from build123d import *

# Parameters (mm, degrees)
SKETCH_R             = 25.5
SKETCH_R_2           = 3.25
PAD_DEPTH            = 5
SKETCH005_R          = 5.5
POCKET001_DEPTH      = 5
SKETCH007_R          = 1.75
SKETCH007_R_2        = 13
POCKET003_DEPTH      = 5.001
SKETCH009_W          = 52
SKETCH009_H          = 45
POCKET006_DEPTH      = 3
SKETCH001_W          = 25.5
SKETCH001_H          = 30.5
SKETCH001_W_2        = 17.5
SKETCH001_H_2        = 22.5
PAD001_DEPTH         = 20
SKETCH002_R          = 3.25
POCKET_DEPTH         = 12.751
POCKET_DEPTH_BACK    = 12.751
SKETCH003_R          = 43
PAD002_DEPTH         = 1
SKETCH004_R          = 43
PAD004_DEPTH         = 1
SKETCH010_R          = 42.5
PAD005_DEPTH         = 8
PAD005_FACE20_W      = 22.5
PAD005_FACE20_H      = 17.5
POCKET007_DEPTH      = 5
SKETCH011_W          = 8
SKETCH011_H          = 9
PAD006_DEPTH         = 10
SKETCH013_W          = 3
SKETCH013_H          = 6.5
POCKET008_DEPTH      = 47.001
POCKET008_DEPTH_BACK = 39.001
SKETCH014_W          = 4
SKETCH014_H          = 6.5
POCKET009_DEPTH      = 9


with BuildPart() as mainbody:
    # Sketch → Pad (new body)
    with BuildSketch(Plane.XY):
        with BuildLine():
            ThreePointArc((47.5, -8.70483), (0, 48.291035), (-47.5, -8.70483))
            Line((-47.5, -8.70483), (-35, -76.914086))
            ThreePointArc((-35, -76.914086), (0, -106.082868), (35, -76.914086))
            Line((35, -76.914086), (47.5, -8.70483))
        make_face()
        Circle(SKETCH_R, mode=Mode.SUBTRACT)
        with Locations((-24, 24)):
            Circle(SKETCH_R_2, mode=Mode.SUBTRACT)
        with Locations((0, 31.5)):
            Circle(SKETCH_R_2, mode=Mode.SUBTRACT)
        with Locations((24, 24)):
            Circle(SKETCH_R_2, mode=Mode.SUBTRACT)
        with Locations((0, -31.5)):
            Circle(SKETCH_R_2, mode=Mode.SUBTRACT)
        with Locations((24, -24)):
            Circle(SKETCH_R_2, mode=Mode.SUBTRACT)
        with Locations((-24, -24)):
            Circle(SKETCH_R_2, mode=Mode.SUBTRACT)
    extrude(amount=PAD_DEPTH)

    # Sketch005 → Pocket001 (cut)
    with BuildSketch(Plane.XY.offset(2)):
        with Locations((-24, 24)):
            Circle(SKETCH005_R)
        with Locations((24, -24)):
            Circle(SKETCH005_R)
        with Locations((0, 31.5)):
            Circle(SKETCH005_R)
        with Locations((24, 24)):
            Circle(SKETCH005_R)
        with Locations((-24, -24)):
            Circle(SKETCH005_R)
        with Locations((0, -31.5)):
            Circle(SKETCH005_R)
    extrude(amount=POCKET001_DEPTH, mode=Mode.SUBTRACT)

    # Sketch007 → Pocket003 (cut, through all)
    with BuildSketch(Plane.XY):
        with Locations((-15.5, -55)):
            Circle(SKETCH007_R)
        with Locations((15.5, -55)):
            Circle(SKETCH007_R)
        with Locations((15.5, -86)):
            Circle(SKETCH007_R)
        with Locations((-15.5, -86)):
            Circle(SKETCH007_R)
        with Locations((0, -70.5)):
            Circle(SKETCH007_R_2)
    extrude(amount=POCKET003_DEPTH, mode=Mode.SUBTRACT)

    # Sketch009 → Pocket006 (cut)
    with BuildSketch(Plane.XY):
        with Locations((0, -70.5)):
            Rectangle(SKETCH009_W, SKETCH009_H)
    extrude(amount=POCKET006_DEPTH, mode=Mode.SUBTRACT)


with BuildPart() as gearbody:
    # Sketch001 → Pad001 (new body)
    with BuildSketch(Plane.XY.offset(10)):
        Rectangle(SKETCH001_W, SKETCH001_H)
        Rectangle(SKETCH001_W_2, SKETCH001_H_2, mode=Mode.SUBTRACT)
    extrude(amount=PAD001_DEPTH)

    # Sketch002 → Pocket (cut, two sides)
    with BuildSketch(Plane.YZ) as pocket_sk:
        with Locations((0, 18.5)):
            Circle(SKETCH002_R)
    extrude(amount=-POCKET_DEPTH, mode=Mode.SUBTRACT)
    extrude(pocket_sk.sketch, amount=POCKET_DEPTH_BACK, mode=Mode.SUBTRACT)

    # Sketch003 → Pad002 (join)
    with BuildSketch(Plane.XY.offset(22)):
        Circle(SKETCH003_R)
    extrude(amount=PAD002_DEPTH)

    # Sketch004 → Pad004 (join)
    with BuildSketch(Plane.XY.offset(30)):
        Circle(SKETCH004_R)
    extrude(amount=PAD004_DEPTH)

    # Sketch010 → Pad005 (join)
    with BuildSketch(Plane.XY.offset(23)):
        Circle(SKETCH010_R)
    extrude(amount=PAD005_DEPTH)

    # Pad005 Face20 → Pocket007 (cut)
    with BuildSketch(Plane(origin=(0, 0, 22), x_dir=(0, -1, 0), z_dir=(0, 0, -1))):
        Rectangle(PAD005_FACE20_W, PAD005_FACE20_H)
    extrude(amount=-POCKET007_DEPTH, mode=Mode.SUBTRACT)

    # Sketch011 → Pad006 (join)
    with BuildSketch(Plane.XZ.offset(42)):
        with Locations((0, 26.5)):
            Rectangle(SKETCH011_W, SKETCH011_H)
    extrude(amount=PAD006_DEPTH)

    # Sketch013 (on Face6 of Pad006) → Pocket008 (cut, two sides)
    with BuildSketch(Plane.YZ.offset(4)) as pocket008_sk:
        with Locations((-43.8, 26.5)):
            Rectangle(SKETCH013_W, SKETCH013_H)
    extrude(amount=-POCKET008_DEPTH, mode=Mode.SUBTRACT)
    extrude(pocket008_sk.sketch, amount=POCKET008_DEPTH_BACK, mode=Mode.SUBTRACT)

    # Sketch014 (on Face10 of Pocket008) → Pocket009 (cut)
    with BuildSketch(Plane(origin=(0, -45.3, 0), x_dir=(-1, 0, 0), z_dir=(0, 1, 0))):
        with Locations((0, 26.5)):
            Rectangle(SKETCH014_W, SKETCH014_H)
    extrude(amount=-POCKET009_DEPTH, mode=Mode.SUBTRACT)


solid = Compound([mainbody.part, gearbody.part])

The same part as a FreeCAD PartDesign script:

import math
import FreeCAD as App
import Part
import Sketcher

V = App.Vector


def add_polygon(sketch, points):
    """Adds a closed chain of lines whose ends are joined by coincident constraints."""
    first, n = sketch.GeometryCount, len(points)
    for a, b in zip(points, points[1:] + points[:1]):
        sketch.addGeometry(Part.LineSegment(App.Vector(*a, 0), App.Vector(*b, 0)), False)
    for i in range(n):
        sketch.addConstraint(Sketcher.Constraint("Coincident", first + i, 2, first + (i + 1) % n, 1))

doc = App.newDocument("Part")
params = doc.addObject("Spreadsheet::Sheet", "Params")
for row, (alias, value) in enumerate([
    ("sketch1_diameter", "51 mm"),
    ("sketch1_diameter2", "6.5 mm"),
    ("pad1_length", "5 mm"),
    ("sketch2_diameter", "11 mm"),
    ("pocket1_length", "5 mm"),
    ("sketch3_diameter", "26 mm"),
    ("sketch3_diameter2", "3.5 mm"),
    ("sketch4_width", "52 mm"),
    ("sketch4_height", "45 mm"),
    ("pocket3_length", "3 mm"),
    ("sketch5_width", "25.5 mm"),
    ("sketch5_width2", "17.5 mm"),
    ("sketch5_height", "30.5 mm"),
    ("sketch5_height2", "22.5 mm"),
    ("pad2_length", "20 mm"),
    ("sketch6_diameter", "6.5 mm"),
    ("sketch7_diameter", "86 mm"),
    ("pad3_length", "1 mm"),
    ("sketch8_diameter", "86 mm"),
    ("pad4_length", "1 mm"),
    ("sketch9_diameter", "85 mm"),
    ("pad5_length", "8 mm"),
    ("sketch10_width", "17.5 mm"),
    ("sketch10_height", "22.5 mm"),
    ("pocket5_length", "5 mm"),
    ("sketch11_width", "8 mm"),
    ("sketch11_height", "9 mm"),
    ("pad6_length", "10 mm"),
    ("sketch12_width", "3 mm"),
    ("sketch12_height", "6.5 mm"),
    ("sketch13_width", "4 mm"),
    ("sketch13_height", "6.5 mm"),
    ("pocket7_length", "9 mm"),
], start=1):
    params.set(f"A{row}", alias)
    params.set(f"B{row}", "=" + value)
    params.setAlias(f"B{row}", alias)

body = doc.addObject("PartDesign::Body", "Body")

sketch1 = body.newObject("Sketcher::SketchObject", "Sketch")
sketch1.AttachmentSupport = (doc.getObject("XY_Plane"), [""])
sketch1.MapMode = "FlatFace"
sketch1.addGeometry([
    Part.ArcOfCircle(Part.Circle(V(0, 0, 0), V(0, 0, 1), 48.3), math.radians(-10), math.radians(190)),
    Part.LineSegment(V(-47.5, -8.7, 0), V(-35, -76.9, 0)),
    Part.ArcOfCircle(Part.Circle(V(0, -70.5, 0), V(0, 0, 1), 35.6), math.radians(-170), math.radians(-10)),
    Part.LineSegment(V(35, -76.9, 0), V(47.5, -8.7, 0)),
    Part.Circle(V(-24, -24, 0), V(0, 0, 1), 3.2),
    Part.Circle(V(0, -31.5, 0), V(0, 0, 1), 3.2),
    Part.Circle(V(24, -24, 0), V(0, 0, 1), 3.2),
    Part.Circle(V(-24, 24, 0), V(0, 0, 1), 3.2),
    Part.Circle(V(0, 0, 0), V(0, 0, 1), 25.5),
    Part.Circle(V(0, 31.5, 0), V(0, 0, 1), 3.2),
    Part.Circle(V(24, 24, 0), V(0, 0, 1), 3.2),
], False)
sketch1.addConstraint([
    Sketcher.Constraint("Tangent", 0, 2, 1, 1),
    Sketcher.Constraint("Tangent", 1, 2, 2, 1),
    Sketcher.Constraint("Tangent", 2, 2, 3, 1),
    Sketcher.Constraint("Tangent", 3, 2, 0, 1),
    Sketcher.Constraint("Coincident", 0, 3, -1, 1),
    Sketcher.Constraint("Coincident", 8, 3, -1, 1),
    Sketcher.Constraint("Equal", 4, 5),
    Sketcher.Constraint("Equal", 5, 6),
    Sketcher.Constraint("Equal", 6, 7),
    Sketcher.Constraint("Equal", 7, 9),
    Sketcher.Constraint("Equal", 9, 10),
    Sketcher.Constraint("Symmetric", 6, 3, 7, 3, -1, 1),
    Sketcher.Constraint("Symmetric", 5, 3, 9, 3, -1, 1),
    Sketcher.Constraint("Symmetric", 4, 3, 10, 3, -1, 1),
    Sketcher.Constraint("Symmetric", 4, 3, 6, 3, -2),
    Sketcher.Constraint("PointOnObject", 2, 3, -2),
    Sketcher.Constraint("PointOnObject", 5, 3, -2),
    Sketcher.Constraint("Diameter", 8, 51.0),
    Sketcher.Constraint("Diameter", 4, 6.5),
    Sketcher.Constraint("DistanceX", 4, 3, -1, 1, 24.0),
    Sketcher.Constraint("DistanceY", 4, 3, -1, 1, 24.0),
    Sketcher.Constraint("DistanceX", 1, 2, -1, 1, 35.0),
    Sketcher.Constraint("DistanceY", 2, 3, 5, 3, 39.0),
    Sketcher.Constraint("DistanceY", 2, 3, -1, 1, 70.5),
    Sketcher.Constraint("DistanceX", 0, 2, -1, 1, 47.5),
])
sketch1.setExpression("Constraints[17]", "Params.sketch1_diameter")
sketch1.setExpression("Constraints[18]", "Params.sketch1_diameter2")
pad1 = body.newObject("PartDesign::Pad", "Pad")
pad1.Profile = sketch1
pad1.setExpression("Length", "Params.pad1_length")

sketch2 = body.newObject("Sketcher::SketchObject", "Sketch001")
sketch2.AttachmentSupport = (doc.getObject("XY_Plane"), [""])
sketch2.MapMode = "FlatFace"
sketch2.AttachmentOffset = App.Placement(V(0, 0, 2), App.Rotation())
sketch2.addGeometry([
    Part.Circle(V(-24, 24, 0), V(0, 0, 1), 6),
    Part.Circle(V(24, -24, 0), V(0, 0, 1), 6),
    Part.Circle(V(0, 32, 0), V(0, 0, 1), 6),
    Part.Circle(V(24, 24, 0), V(0, 0, 1), 6),
    Part.Circle(V(-24, -24, 0), V(0, 0, 1), 6),
    Part.Circle(V(0, -32, 0), V(0, 0, 1), 6),
], False)
sketch2.addConstraint([
    Sketcher.Constraint("Equal", 0, 1),
    Sketcher.Constraint("Equal", 1, 2),
    Sketcher.Constraint("Equal", 2, 3),
    Sketcher.Constraint("Equal", 3, 4),
    Sketcher.Constraint("Equal", 4, 5),
    Sketcher.Constraint("Symmetric", 0, 3, 1, 3, -1, 1),
    Sketcher.Constraint("Symmetric", 3, 3, 4, 3, -1, 1),
    Sketcher.Constraint("Symmetric", 2, 3, 5, 3, -1, 1),
    Sketcher.Constraint("Symmetric", 0, 3, 3, 3, -2),
    Sketcher.Constraint("PointOnObject", 2, 3, -2),
    Sketcher.Constraint("Diameter", 0, 11.0),
    Sketcher.Constraint("DistanceX", 0, 3, -1, 1, 24.0),
    Sketcher.Constraint("DistanceY", -1, 1, 0, 3, 24.0),
    Sketcher.Constraint("DistanceY", 5, 3, 2, 3, 63.0),
])
sketch2.setExpression("Constraints[10]", "Params.sketch2_diameter")
pocket1 = body.newObject("PartDesign::Pocket", "Pocket")
pocket1.Profile = sketch2
pocket1.setExpression("Length", "Params.pocket1_length")
pocket1.Reversed = True

sketch3 = body.newObject("Sketcher::SketchObject", "Sketch002")
sketch3.AttachmentSupport = (doc.getObject("XY_Plane"), [""])
sketch3.MapMode = "FlatFace"
sketch3.addGeometry([
    Part.Circle(V(-15.5, -55, 0), V(0, 0, 1), 1.8),
    Part.Circle(V(15.5, -55, 0), V(0, 0, 1), 1.8),
    Part.Circle(V(15.5, -86, 0), V(0, 0, 1), 1.8),
    Part.Circle(V(-15.5, -86, 0), V(0, 0, 1), 1.8),
    Part.Circle(V(0, -70.5, 0), V(0, 0, 1), 13),
], False)
sketch3.addConstraint([
    Sketcher.Constraint("Equal", 0, 1),
    Sketcher.Constraint("Equal", 1, 2),
    Sketcher.Constraint("Equal", 2, 3),
    Sketcher.Constraint("Symmetric", 0, 3, 1, 3, -2),
    Sketcher.Constraint("Symmetric", 2, 3, 3, 3, -2),
    Sketcher.Constraint("PointOnObject", 4, 3, -2),
    Sketcher.Constraint("Vertical", 1, 3, 2, 3),
    Sketcher.Constraint("Diameter", 4, 26.0),
    Sketcher.Constraint("Diameter", 0, 3.5),
    Sketcher.Constraint("DistanceY", 0, 3, -1, 1, 55.0),
    Sketcher.Constraint("DistanceY", 2, 3, -1, 1, 86.0),
    Sketcher.Constraint("DistanceX", 0, 3, 1, 3, 31.0),
    Sketcher.Constraint("DistanceY", 4, 3, -1, 1, 70.5),
])
sketch3.setExpression("Constraints[7]", "Params.sketch3_diameter")
sketch3.setExpression("Constraints[8]", "Params.sketch3_diameter2")
pocket2 = body.newObject("PartDesign::Pocket", "Pocket001")
pocket2.Profile = sketch3
pocket2.Type = "ThroughAll"
pocket2.Reversed = True

sketch4 = body.newObject("Sketcher::SketchObject", "Sketch003")
sketch4.AttachmentSupport = (doc.getObject("XY_Plane"), [""])
sketch4.MapMode = "FlatFace"
add_polygon(sketch4, [(-26, -48), (-26, -93), (26, -93), (26, -48)])
sketch4.addConstraint([
    Sketcher.Constraint("Vertical", 0),
    Sketcher.Constraint("Horizontal", 1),
    Sketcher.Constraint("Vertical", 2),
    Sketcher.Constraint("Horizontal", 3),
    Sketcher.Constraint("DistanceX", 1, 1, 1, 2, 52.0),
    Sketcher.Constraint("DistanceY", 0, 2, 0, 1, 45.0),
    Sketcher.Constraint("DistanceX", 0, 2, -1, 1, 26.0),
    Sketcher.Constraint("DistanceY", 0, 2, -1, 1, 93.0),
])
sketch4.setExpression("Constraints[8]", "Params.sketch4_width")
sketch4.setExpression("Constraints[9]", "Params.sketch4_height")
pocket3 = body.newObject("PartDesign::Pocket", "Pocket002")
pocket3.Profile = sketch4
pocket3.setExpression("Length", "Params.pocket3_length")
pocket3.Reversed = True
body2 = doc.addObject("PartDesign::Body", "Body001")

sketch5 = body2.newObject("Sketcher::SketchObject", "Sketch004")
sketch5.AttachmentSupport = (doc.getObject("XY_Plane001"), [""])
sketch5.MapMode = "FlatFace"
sketch5.AttachmentOffset = App.Placement(V(0, 0, 10), App.Rotation())
add_polygon(sketch5, [(-13, 15), (-13, -15), (13, -15), (13, 15)])
add_polygon(sketch5, [(9, -11), (-9, -11), (-9, 11), (9, 11)])
sketch5.addConstraint([
    Sketcher.Constraint("Vertical", 0),
    Sketcher.Constraint("Horizontal", 1),
    Sketcher.Constraint("Vertical", 2),
    Sketcher.Constraint("Horizontal", 3),
    Sketcher.Constraint("Horizontal", 4),
    Sketcher.Constraint("Vertical", 5),
    Sketcher.Constraint("Horizontal", 6),
    Sketcher.Constraint("Vertical", 7),
    Sketcher.Constraint("Symmetric", 0, 2, 2, 2, -1, 1),
    Sketcher.Constraint("Symmetric", 4, 2, 6, 2, -1, 1),
    Sketcher.Constraint("DistanceX", 1, 1, 1, 2, 25.5),
    Sketcher.Constraint("DistanceX", 4, 2, 4, 1, 17.5),
    Sketcher.Constraint("DistanceY", 0, 2, 0, 1, 30.5),
    Sketcher.Constraint("DistanceY", 5, 1, 5, 2, 22.5),
])
sketch5.setExpression("Constraints[18]", "Params.sketch5_width")
sketch5.setExpression("Constraints[19]", "Params.sketch5_width2")
sketch5.setExpression("Constraints[20]", "Params.sketch5_height")
sketch5.setExpression("Constraints[21]", "Params.sketch5_height2")
pad2 = body2.newObject("PartDesign::Pad", "Pad001")
pad2.Profile = sketch5
pad2.setExpression("Length", "Params.pad2_length")

sketch6 = body2.newObject("Sketcher::SketchObject", "Sketch005")
sketch6.AttachmentSupport = (doc.getObject("YZ_Plane001"), [""])
sketch6.MapMode = "FlatFace"
sketch6.addGeometry(Part.Circle(V(0, 18.5, 0), V(0, 0, 1), 3.2), False)
sketch6.addConstraint([
    Sketcher.Constraint("PointOnObject", 0, 3, -2),
    Sketcher.Constraint("Diameter", 0, 6.5),
    Sketcher.Constraint("DistanceY", -1, 1, 0, 3, 18.5),
])
sketch6.setExpression("Constraints[1]", "Params.sketch6_diameter")
pocket4 = body2.newObject("PartDesign::Pocket", "Pocket003")
pocket4.Profile = sketch6
pocket4.Type = "ThroughAll"
pocket4.Midplane = True

sketch7 = body2.newObject("Sketcher::SketchObject", "Sketch006")
sketch7.AttachmentSupport = (doc.getObject("XY_Plane001"), [""])
sketch7.MapMode = "FlatFace"
sketch7.AttachmentOffset = App.Placement(V(0, 0, 22), App.Rotation())
sketch7.addGeometry(Part.Circle(V(0, 0, 0), V(0, 0, 1), 43), False)
sketch7.addConstraint([
    Sketcher.Constraint("Coincident", 0, 3, -1, 1),
    Sketcher.Constraint("Diameter", 0, 86.0),
])
sketch7.setExpression("Constraints[1]", "Params.sketch7_diameter")
pad3 = body2.newObject("PartDesign::Pad", "Pad002")
pad3.Profile = sketch7
pad3.setExpression("Length", "Params.pad3_length")

sketch8 = body2.newObject("Sketcher::SketchObject", "Sketch007")
sketch8.AttachmentSupport = (doc.getObject("XY_Plane001"), [""])
sketch8.MapMode = "FlatFace"
sketch8.AttachmentOffset = App.Placement(V(0, 0, 30), App.Rotation())
sketch8.addGeometry(Part.Circle(V(0, 0, 0), V(0, 0, 1), 43), False)
sketch8.addConstraint([
    Sketcher.Constraint("Coincident", 0, 3, -1, 1),
    Sketcher.Constraint("Diameter", 0, 86.0),
])
sketch8.setExpression("Constraints[1]", "Params.sketch8_diameter")
pad4 = body2.newObject("PartDesign::Pad", "Pad003")
pad4.Profile = sketch8
pad4.setExpression("Length", "Params.pad4_length")

sketch9 = body2.newObject("Sketcher::SketchObject", "Sketch008")
sketch9.AttachmentSupport = (doc.getObject("XY_Plane001"), [""])
sketch9.MapMode = "FlatFace"
sketch9.AttachmentOffset = App.Placement(V(0, 0, 23), App.Rotation())
sketch9.addGeometry(Part.Circle(V(0, 0, 0), V(0, 0, 1), 42), False)
sketch9.addConstraint([
    Sketcher.Constraint("Coincident", 0, 3, -1, 1),
    Sketcher.Constraint("Diameter", 0, 85.0),
])
sketch9.setExpression("Constraints[1]", "Params.sketch9_diameter")
pad5 = body2.newObject("PartDesign::Pad", "Pad004")
pad5.Profile = sketch9
pad5.setExpression("Length", "Params.pad5_length")

sketch10 = body2.newObject("Sketcher::SketchObject", "Sketch009")
sketch10.AttachmentSupport = (doc.getObject("XY_Plane001"), [""])
sketch10.MapMode = "FlatFace"
sketch10.AttachmentOffset = App.Placement(V(0, 0, 22), App.Rotation())
add_polygon(sketch10, [(-9, 11), (9, 11), (9, -11), (-9, -11)])
sketch10.addConstraint([
    Sketcher.Constraint("Horizontal", 0),
    Sketcher.Constraint("Vertical", 1),
    Sketcher.Constraint("Horizontal", 2),
    Sketcher.Constraint("Vertical", 3),
    Sketcher.Constraint("Symmetric", 0, 2, 2, 2, -1, 1),
    Sketcher.Constraint("DistanceX", 0, 1, 0, 2, 17.5),
    Sketcher.Constraint("DistanceY", 1, 2, 1, 1, 22.5),
])
sketch10.setExpression("Constraints[9]", "Params.sketch10_width")
sketch10.setExpression("Constraints[10]", "Params.sketch10_height")
pocket5 = body2.newObject("PartDesign::Pocket", "Pocket004")
pocket5.Profile = sketch10
pocket5.setExpression("Length", "Params.pocket5_length")
pocket5.Reversed = True

sketch11 = body2.newObject("Sketcher::SketchObject", "Sketch010")
sketch11.AttachmentSupport = (doc.getObject("XZ_Plane001"), [""])
sketch11.MapMode = "FlatFace"
sketch11.AttachmentOffset = App.Placement(V(0, 0, 42), App.Rotation())
add_polygon(sketch11, [(-4, 31), (-4, 22), (4, 22), (4, 31)])
sketch11.addConstraint([
    Sketcher.Constraint("Vertical", 0),
    Sketcher.Constraint("Horizontal", 1),
    Sketcher.Constraint("Vertical", 2),
    Sketcher.Constraint("Horizontal", 3),
    Sketcher.Constraint("DistanceX", 1, 1, 1, 2, 8.0),
    Sketcher.Constraint("DistanceY", 0, 2, 0, 1, 9.0),
    Sketcher.Constraint("DistanceX", 0, 2, -1, 1, 4.0),
    Sketcher.Constraint("DistanceY", -1, 1, 0, 2, 22.0),
])
sketch11.setExpression("Constraints[8]", "Params.sketch11_width")
sketch11.setExpression("Constraints[9]", "Params.sketch11_height")
pad6 = body2.newObject("PartDesign::Pad", "Pad005")
pad6.Profile = sketch11
pad6.setExpression("Length", "Params.pad6_length")

sketch12 = body2.newObject("Sketcher::SketchObject", "Sketch011")
sketch12.AttachmentSupport = (doc.getObject("YZ_Plane001"), [""])
sketch12.MapMode = "FlatFace"
sketch12.AttachmentOffset = App.Placement(V(0, 0, 4), App.Rotation())
add_polygon(sketch12, [(-45.3, 29.8), (-45.3, 23.2), (-42.3, 23.2), (-42.3, 29.8)])
sketch12.addConstraint([
    Sketcher.Constraint("Vertical", 0),
    Sketcher.Constraint("Horizontal", 1),
    Sketcher.Constraint("Vertical", 2),
    Sketcher.Constraint("Horizontal", 3),
    Sketcher.Constraint("DistanceX", 1, 1, 1, 2, 3.0),
    Sketcher.Constraint("DistanceY", 0, 2, 0, 1, 6.5),
    Sketcher.Constraint("DistanceX", 0, 2, -1, 1, 45.3),
    Sketcher.Constraint("DistanceY", -1, 1, 0, 2, 23.25),
])
sketch12.setExpression("Constraints[8]", "Params.sketch12_width")
sketch12.setExpression("Constraints[9]", "Params.sketch12_height")
pocket6 = body2.newObject("PartDesign::Pocket", "Pocket005")
pocket6.Profile = sketch12
pocket6.Type = "ThroughAll"
pocket6.Midplane = True

sketch13 = body2.newObject("Sketcher::SketchObject", "Sketch012")
sketch13.AttachmentSupport = (doc.getObject("XZ_Plane001"), [""])
sketch13.MapMode = "FlatFace"
sketch13.AttachmentOffset = App.Placement(V(0, 0, 45.3), App.Rotation())
add_polygon(sketch13, [(2, 29.8), (2, 23.2), (-2, 23.2), (-2, 29.8)])
sketch13.addConstraint([
    Sketcher.Constraint("Vertical", 0),
    Sketcher.Constraint("Horizontal", 1),
    Sketcher.Constraint("Vertical", 2),
    Sketcher.Constraint("Horizontal", 3),
    Sketcher.Constraint("DistanceX", 1, 2, 1, 1, 4.0),
    Sketcher.Constraint("DistanceY", 0, 2, 0, 1, 6.5),
    Sketcher.Constraint("DistanceX", -1, 1, 0, 2, 2.0),
    Sketcher.Constraint("DistanceY", -1, 1, 0, 2, 23.25),
])
sketch13.setExpression("Constraints[8]", "Params.sketch13_width")
sketch13.setExpression("Constraints[9]", "Params.sketch13_height")
pocket7 = body2.newObject("PartDesign::Pocket", "Pocket006")
pocket7.Profile = sketch13
pocket7.setExpression("Length", "Params.pocket7_length")
pocket7.Reversed = True

doc.recompute()
